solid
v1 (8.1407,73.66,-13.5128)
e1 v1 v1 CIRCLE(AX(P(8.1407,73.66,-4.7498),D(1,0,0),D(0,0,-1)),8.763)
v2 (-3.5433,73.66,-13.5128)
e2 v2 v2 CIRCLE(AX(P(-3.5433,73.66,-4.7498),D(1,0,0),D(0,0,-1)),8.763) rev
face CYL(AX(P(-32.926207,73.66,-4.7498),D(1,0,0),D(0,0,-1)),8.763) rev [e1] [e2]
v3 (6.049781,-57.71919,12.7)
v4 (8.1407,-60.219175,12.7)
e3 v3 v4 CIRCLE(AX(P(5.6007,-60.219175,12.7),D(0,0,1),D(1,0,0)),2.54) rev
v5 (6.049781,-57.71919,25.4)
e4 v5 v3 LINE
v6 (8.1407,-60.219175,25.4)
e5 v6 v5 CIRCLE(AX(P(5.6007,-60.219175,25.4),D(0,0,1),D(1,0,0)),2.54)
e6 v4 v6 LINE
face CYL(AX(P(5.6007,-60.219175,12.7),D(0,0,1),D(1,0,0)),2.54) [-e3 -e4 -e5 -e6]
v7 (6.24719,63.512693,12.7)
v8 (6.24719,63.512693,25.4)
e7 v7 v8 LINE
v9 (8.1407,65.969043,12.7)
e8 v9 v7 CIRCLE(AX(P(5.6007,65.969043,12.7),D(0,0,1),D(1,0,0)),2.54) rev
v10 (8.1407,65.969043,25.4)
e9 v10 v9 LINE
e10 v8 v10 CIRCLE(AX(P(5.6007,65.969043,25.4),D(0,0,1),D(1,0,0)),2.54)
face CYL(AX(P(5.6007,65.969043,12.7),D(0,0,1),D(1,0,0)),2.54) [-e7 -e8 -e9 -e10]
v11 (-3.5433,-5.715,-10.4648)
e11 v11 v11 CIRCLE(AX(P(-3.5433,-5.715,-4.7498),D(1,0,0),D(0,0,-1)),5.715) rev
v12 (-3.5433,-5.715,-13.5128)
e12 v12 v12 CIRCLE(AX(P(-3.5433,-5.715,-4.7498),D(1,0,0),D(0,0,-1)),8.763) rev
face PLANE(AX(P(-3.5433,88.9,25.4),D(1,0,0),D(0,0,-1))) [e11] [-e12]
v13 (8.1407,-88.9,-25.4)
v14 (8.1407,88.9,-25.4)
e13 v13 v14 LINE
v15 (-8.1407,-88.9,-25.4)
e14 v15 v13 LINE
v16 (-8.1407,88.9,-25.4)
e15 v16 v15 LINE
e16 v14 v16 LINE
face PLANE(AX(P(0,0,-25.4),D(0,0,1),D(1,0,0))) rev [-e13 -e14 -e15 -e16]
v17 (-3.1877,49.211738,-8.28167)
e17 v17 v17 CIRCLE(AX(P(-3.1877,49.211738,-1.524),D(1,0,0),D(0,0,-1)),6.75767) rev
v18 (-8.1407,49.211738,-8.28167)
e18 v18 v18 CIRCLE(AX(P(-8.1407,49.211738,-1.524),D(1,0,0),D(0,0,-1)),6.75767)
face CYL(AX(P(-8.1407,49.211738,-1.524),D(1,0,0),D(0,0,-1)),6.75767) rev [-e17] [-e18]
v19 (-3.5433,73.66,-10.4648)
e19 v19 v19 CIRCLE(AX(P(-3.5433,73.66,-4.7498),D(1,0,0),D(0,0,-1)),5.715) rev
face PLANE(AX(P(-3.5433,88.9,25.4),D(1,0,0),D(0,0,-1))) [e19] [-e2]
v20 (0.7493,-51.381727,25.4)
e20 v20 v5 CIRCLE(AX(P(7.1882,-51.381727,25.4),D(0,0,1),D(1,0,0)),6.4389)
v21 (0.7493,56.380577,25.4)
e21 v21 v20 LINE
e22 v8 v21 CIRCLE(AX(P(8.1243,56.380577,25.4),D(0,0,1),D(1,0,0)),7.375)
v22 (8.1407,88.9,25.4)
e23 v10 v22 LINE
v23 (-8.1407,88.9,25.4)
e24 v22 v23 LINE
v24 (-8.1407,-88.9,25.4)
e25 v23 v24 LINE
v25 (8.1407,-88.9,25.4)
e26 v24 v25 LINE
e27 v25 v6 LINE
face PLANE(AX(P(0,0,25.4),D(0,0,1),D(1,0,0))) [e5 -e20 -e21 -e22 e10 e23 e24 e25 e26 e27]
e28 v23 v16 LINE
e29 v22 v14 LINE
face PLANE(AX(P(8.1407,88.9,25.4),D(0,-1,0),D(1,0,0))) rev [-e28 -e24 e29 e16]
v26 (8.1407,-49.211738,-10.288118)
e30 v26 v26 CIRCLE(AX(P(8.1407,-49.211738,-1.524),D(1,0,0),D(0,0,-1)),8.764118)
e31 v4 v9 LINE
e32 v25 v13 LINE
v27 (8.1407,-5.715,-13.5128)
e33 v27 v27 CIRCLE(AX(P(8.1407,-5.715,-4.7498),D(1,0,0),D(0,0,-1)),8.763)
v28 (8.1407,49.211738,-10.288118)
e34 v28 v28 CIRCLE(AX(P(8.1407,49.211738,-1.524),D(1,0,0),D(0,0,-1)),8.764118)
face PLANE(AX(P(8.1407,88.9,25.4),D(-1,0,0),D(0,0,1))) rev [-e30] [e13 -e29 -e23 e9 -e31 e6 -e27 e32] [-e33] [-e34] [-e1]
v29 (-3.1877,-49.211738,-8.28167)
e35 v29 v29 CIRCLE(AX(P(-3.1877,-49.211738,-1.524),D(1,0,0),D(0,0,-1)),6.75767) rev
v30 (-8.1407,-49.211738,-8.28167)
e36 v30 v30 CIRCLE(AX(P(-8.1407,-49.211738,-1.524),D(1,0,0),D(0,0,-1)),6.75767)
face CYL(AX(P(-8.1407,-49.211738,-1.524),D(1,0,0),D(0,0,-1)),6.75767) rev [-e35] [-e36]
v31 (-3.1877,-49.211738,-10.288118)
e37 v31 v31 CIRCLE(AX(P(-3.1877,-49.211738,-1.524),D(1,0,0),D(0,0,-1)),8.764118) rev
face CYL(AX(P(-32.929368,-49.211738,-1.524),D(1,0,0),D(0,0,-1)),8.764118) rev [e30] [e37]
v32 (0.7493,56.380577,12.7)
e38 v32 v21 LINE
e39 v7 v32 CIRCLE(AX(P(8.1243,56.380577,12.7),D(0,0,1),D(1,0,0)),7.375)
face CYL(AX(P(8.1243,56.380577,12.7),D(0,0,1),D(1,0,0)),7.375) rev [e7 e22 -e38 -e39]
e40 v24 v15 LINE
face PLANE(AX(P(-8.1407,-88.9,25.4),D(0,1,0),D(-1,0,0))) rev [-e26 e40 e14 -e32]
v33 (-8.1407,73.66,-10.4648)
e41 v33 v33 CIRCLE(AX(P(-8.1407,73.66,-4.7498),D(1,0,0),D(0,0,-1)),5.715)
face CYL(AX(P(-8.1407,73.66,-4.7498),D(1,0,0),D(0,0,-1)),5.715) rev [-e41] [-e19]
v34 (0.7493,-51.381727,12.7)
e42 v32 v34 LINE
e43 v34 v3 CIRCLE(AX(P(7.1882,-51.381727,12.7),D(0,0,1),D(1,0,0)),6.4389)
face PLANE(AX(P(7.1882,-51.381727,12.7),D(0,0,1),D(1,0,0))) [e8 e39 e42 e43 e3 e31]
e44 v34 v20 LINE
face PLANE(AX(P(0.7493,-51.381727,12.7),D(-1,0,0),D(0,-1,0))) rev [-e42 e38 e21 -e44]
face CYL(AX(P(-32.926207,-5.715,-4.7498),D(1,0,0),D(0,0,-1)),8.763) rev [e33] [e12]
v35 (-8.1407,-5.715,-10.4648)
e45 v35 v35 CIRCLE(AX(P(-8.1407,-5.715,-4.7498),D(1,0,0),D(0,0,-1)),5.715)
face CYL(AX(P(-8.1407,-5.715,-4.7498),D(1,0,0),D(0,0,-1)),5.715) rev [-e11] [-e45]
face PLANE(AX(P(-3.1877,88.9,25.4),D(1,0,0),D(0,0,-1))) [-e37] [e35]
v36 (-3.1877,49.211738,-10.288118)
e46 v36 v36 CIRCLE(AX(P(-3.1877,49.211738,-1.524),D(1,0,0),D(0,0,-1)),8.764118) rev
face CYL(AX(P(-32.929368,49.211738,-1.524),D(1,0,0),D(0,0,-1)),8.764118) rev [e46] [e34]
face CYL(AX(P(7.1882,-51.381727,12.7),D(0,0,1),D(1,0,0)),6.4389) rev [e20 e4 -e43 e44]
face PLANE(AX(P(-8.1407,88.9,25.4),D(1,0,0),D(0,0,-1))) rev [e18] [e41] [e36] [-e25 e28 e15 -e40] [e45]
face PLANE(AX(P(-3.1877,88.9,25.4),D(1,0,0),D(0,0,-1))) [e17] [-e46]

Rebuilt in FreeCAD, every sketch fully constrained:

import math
import FreeCAD as App
import Part
import Sketcher
from FreeCAD import Vector
Q = App.Units.Quantity


def edges_at(feature, points):
    """Names of the edges that pass closest to the given points."""
    edges = feature.Shape.Edges
    near = lambda p: min(range(len(edges)), key=lambda i: edges[i].distToShape(Part.Vertex(*p))[0])
    return sorted({f"Edge{near(p) + 1}" for p in points})


def add_polygon(sketch, points):
    """Adds a closed chain of lines whose ends are joined by coincident constraints."""
    first, n = sketch.GeometryCount, len(points)
    for a, b in zip(points, points[1:] + points[:1]):
        sketch.addGeometry(Part.LineSegment(App.Vector(*a, 0), App.Vector(*b, 0)), False)
    for i in range(n):
        sketch.addConstraint(Sketcher.Constraint("Coincident", first + i, 2, first + (i + 1) % n, 1))

doc = App.newDocument("Part")
body = doc.addObject("PartDesign::Body", "Body")

# Sketch on XY plane
sketch1 = body.newObject("Sketcher::SketchObject", "Sketch")
sketch1.AttachmentSupport = (doc.getObject("XY_Plane"), [""])
sketch1.MapMode = "FlatFace"
add_polygon(sketch1, [(-8, 89), (-8, -89), (8, -89), (8, 89)])  # lines 0-3
sketch1.addConstraint(Sketcher.Constraint("Vertical", 0))
sketch1.addConstraint(Sketcher.Constraint("Horizontal", 1))
sketch1.addConstraint(Sketcher.Constraint("Vertical", 2))
sketch1.addConstraint(Sketcher.Constraint("Horizontal", 3))
sketch1.addConstraint(Sketcher.Constraint("Symmetric", 0, 2, 2, 2, -1, 1))
sketch1.addConstraint(Sketcher.Constraint("DistanceY", 0, 2, 0, 1, Q("7 in")))
sketch1.addConstraint(Sketcher.Constraint("DistanceX", 1, 1, 1, 2, Q("0.641 in")))
pad1 = body.newObject("PartDesign::Pad", "Pad")
pad1.Profile = sketch1
pad1.Length = Q("2 in")
pad1.Midplane = True

# Sketch on YZ plane
sketch2 = body.newObject("Sketcher::SketchObject", "Sketch001")
sketch2.AttachmentSupport = (doc.getObject("YZ_Plane"), [""])
sketch2.MapMode = "FlatFace"
sketch2.AttachmentOffset = App.Placement(Vector(0, 0, 0.3205 * 25.4), App.Rotation())
sketch2.addGeometry(Part.Circle(Vector(49, -2, 0), Vector(0, 0, 1), 7), False)
sketch2.addGeometry(Part.Circle(Vector(-49, -2, 0), Vector(0, 0, 1), 7), False)
sketch2.addConstraint(Sketcher.Constraint("Equal", 0, 1))
sketch2.addConstraint(Sketcher.Constraint("Symmetric", 0, 3, 1, 3, -2))
sketch2.addConstraint(Sketcher.Constraint("Diameter", 0, Q("0.5321 in")))
sketch2.addConstraint(Sketcher.Constraint("DistanceY", 0, 3, -1, 1, Q("0.06 in")))
sketch2.addConstraint(Sketcher.Constraint("DistanceX", -1, 1, 0, 3, 49.211738))
pocket1 = body.newObject("PartDesign::Pocket", "Pocket")
pocket1.Profile = sketch2
pocket1.Type = "ThroughAll"

# Sketch on YZ plane
sketch3 = body.newObject("Sketcher::SketchObject", "Sketch002")
sketch3.AttachmentSupport = (doc.getObject("YZ_Plane"), [""])
sketch3.MapMode = "FlatFace"
sketch3.AttachmentOffset = App.Placement(Vector(0, 0, 0.3205 * 25.4), App.Rotation())
sketch3.addGeometry(Part.Circle(Vector(49, -2, 0), Vector(0, 0, 1), 9), False)
sketch3.addGeometry(Part.Circle(Vector(-49, -2, 0), Vector(0, 0, 1), 9), False)
sketch3.addConstraint(Sketcher.Constraint("Equal", 0, 1))
sketch3.addConstraint(Sketcher.Constraint("Symmetric", 0, 3, 1, 3, -2))
sketch3.addConstraint(Sketcher.Constraint("DistanceY", 0, 3, -1, 1, Q("0.06 in")))
sketch3.addConstraint(Sketcher.Constraint("Diameter", 0, 17.528235))
sketch3.addConstraint(Sketcher.Constraint("DistanceX", -1, 1, 0, 3, 49.211738))
pocket2 = body.newObject("PartDesign::Pocket", "Pocket001")
pocket2.Profile = sketch3
pocket2.Length = Q("0.446 in")

# Sketch on XY plane
sketch4 = body.newObject("Sketcher::SketchObject", "Sketch003")
sketch4.AttachmentSupport = (doc.getObject("XY_Plane"), [""])
sketch4.MapMode = "FlatFace"
sketch4.AttachmentOffset = App.Placement(Vector(0, 0, 1 * 25.4), App.Rotation())
sketch4.addGeometry(Part.LineSegment(Vector(1, 56, 0), Vector(1, -51, 0)), False)
sketch4.addGeometry(Part.ArcOfCircle(Part.Circle(Vector(7, -51, 0), Vector(0, 0, 1), 6), math.radians(180), math.radians(279)), False)
sketch4.addGeometry(Part.LineSegment(Vector(8, -58, 0), Vector(8, 64, 0)), False)
sketch4.addGeometry(Part.ArcOfCircle(Part.Circle(Vector(8, 56, 0), Vector(0, 0, 1), 7), math.radians(90), math.radians(180)), False)
sketch4.addConstraint(Sketcher.Constraint("Tangent", 0, 2, 1, 1))
sketch4.addConstraint(Sketcher.Constraint("Coincident", 1, 2, 2, 1))
sketch4.addConstraint(Sketcher.Constraint("Coincident", 2, 2, 3, 1))
sketch4.addConstraint(Sketcher.Constraint("Tangent", 3, 2, 0, 1))
sketch4.addConstraint(Sketcher.Constraint("Vertical", 0))
sketch4.addConstraint(Sketcher.Constraint("Vertical", 2))
sketch4.addConstraint(Sketcher.Constraint("Radius", 1, Q("0.2535 in")))
sketch4.addConstraint(Sketcher.Constraint("Radius", 3, 7.375))
sketch4.addConstraint(Sketcher.Constraint("DistanceX", -1, 1, 1, 3, Q("0.283 in")))
sketch4.addConstraint(Sketcher.Constraint("DistanceX", 0, 2, 1, 2, Q("0.291 in")))
sketch4.addConstraint(Sketcher.Constraint("DistanceY", 0, 2, 0, 1, 107.762304))
sketch4.addConstraint(Sketcher.Constraint("DistanceY", -1, 1, 2, 2, 63.755559))
pocket3 = body.newObject("PartDesign::Pocket", "Pocket002")
pocket3.Profile = sketch4
pocket3.Length = Q("0.5 in")

# Sketch on YZ plane
sketch5 = body.newObject("Sketcher::SketchObject", "Sketch004")
sketch5.AttachmentSupport = (doc.getObject("YZ_Plane"), [""])
sketch5.MapMode = "FlatFace"
sketch5.AttachmentOffset = App.Placement(Vector(0, 0, 0.3205 * 25.4), App.Rotation())
sketch5.addGeometry(Part.Circle(Vector(-6, -5, 0), Vector(0, 0, 1), 6), False)
sketch5.addGeometry(Part.Circle(Vector(74, -5, 0), Vector(0, 0, 1), 6), False)
sketch5.addConstraint(Sketcher.Constraint("Equal", 0, 1))
sketch5.addConstraint(Sketcher.Constraint("Horizontal", 0, 3, 1, 3))
sketch5.addConstraint(Sketcher.Constraint("Diameter", 0, Q("0.45 in")))
sketch5.addConstraint(Sketcher.Constraint("DistanceX", -1, 1, 1, 3, Q("2.9 in")))
sketch5.addConstraint(Sketcher.Constraint("DistanceX", 0, 3, -1, 1, Q("0.225 in")))
sketch5.addConstraint(Sketcher.Constraint("DistanceY", 0, 3, -1, 1, Q("0.187 in")))
pocket4 = body.newObject("PartDesign::Pocket", "Pocket003")
pocket4.Profile = sketch5
pocket4.Type = "ThroughAll"

# Sketch on YZ plane
sketch6 = body.newObject("Sketcher::SketchObject", "Sketch005")
sketch6.AttachmentSupport = (doc.getObject("YZ_Plane"), [""])
sketch6.MapMode = "FlatFace"
sketch6.AttachmentOffset = App.Placement(Vector(0, 0, 0.3205 * 25.4), App.Rotation())
sketch6.addGeometry(Part.Circle(Vector(-6, -5, 0), Vector(0, 0, 1), 9), False)
sketch6.addGeometry(Part.Circle(Vector(74, -5, 0), Vector(0, 0, 1), 9), False)
sketch6.addConstraint(Sketcher.Constraint("Equal", 0, 1))
sketch6.addConstraint(Sketcher.Constraint("Horizontal", 0, 3, 1, 3))
sketch6.addConstraint(Sketcher.Constraint("Diameter", 0, Q("0.69 in")))
sketch6.addConstraint(Sketcher.Constraint("DistanceX", -1, 1, 1, 3, Q("2.9 in")))
sketch6.addConstraint(Sketcher.Constraint("DistanceX", 0, 3, -1, 1, Q("0.225 in")))
sketch6.addConstraint(Sketcher.Constraint("DistanceY", 0, 3, -1, 1, Q("0.187 in")))
pocket5 = body.newObject("PartDesign::Pocket", "Pocket004")
pocket5.Profile = sketch6
pocket5.Length = Q("0.46 in")
doc.recompute()

fillet = body.newObject("PartDesign::Fillet", "Fillet")
fillet.Base = (pocket5, edges_at(pocket5, [(8.141, -57.75, 19.05), (8.141, 63.756, 19.05)]))
fillet.Radius = Q("0.1 in")

doc.recompute()
